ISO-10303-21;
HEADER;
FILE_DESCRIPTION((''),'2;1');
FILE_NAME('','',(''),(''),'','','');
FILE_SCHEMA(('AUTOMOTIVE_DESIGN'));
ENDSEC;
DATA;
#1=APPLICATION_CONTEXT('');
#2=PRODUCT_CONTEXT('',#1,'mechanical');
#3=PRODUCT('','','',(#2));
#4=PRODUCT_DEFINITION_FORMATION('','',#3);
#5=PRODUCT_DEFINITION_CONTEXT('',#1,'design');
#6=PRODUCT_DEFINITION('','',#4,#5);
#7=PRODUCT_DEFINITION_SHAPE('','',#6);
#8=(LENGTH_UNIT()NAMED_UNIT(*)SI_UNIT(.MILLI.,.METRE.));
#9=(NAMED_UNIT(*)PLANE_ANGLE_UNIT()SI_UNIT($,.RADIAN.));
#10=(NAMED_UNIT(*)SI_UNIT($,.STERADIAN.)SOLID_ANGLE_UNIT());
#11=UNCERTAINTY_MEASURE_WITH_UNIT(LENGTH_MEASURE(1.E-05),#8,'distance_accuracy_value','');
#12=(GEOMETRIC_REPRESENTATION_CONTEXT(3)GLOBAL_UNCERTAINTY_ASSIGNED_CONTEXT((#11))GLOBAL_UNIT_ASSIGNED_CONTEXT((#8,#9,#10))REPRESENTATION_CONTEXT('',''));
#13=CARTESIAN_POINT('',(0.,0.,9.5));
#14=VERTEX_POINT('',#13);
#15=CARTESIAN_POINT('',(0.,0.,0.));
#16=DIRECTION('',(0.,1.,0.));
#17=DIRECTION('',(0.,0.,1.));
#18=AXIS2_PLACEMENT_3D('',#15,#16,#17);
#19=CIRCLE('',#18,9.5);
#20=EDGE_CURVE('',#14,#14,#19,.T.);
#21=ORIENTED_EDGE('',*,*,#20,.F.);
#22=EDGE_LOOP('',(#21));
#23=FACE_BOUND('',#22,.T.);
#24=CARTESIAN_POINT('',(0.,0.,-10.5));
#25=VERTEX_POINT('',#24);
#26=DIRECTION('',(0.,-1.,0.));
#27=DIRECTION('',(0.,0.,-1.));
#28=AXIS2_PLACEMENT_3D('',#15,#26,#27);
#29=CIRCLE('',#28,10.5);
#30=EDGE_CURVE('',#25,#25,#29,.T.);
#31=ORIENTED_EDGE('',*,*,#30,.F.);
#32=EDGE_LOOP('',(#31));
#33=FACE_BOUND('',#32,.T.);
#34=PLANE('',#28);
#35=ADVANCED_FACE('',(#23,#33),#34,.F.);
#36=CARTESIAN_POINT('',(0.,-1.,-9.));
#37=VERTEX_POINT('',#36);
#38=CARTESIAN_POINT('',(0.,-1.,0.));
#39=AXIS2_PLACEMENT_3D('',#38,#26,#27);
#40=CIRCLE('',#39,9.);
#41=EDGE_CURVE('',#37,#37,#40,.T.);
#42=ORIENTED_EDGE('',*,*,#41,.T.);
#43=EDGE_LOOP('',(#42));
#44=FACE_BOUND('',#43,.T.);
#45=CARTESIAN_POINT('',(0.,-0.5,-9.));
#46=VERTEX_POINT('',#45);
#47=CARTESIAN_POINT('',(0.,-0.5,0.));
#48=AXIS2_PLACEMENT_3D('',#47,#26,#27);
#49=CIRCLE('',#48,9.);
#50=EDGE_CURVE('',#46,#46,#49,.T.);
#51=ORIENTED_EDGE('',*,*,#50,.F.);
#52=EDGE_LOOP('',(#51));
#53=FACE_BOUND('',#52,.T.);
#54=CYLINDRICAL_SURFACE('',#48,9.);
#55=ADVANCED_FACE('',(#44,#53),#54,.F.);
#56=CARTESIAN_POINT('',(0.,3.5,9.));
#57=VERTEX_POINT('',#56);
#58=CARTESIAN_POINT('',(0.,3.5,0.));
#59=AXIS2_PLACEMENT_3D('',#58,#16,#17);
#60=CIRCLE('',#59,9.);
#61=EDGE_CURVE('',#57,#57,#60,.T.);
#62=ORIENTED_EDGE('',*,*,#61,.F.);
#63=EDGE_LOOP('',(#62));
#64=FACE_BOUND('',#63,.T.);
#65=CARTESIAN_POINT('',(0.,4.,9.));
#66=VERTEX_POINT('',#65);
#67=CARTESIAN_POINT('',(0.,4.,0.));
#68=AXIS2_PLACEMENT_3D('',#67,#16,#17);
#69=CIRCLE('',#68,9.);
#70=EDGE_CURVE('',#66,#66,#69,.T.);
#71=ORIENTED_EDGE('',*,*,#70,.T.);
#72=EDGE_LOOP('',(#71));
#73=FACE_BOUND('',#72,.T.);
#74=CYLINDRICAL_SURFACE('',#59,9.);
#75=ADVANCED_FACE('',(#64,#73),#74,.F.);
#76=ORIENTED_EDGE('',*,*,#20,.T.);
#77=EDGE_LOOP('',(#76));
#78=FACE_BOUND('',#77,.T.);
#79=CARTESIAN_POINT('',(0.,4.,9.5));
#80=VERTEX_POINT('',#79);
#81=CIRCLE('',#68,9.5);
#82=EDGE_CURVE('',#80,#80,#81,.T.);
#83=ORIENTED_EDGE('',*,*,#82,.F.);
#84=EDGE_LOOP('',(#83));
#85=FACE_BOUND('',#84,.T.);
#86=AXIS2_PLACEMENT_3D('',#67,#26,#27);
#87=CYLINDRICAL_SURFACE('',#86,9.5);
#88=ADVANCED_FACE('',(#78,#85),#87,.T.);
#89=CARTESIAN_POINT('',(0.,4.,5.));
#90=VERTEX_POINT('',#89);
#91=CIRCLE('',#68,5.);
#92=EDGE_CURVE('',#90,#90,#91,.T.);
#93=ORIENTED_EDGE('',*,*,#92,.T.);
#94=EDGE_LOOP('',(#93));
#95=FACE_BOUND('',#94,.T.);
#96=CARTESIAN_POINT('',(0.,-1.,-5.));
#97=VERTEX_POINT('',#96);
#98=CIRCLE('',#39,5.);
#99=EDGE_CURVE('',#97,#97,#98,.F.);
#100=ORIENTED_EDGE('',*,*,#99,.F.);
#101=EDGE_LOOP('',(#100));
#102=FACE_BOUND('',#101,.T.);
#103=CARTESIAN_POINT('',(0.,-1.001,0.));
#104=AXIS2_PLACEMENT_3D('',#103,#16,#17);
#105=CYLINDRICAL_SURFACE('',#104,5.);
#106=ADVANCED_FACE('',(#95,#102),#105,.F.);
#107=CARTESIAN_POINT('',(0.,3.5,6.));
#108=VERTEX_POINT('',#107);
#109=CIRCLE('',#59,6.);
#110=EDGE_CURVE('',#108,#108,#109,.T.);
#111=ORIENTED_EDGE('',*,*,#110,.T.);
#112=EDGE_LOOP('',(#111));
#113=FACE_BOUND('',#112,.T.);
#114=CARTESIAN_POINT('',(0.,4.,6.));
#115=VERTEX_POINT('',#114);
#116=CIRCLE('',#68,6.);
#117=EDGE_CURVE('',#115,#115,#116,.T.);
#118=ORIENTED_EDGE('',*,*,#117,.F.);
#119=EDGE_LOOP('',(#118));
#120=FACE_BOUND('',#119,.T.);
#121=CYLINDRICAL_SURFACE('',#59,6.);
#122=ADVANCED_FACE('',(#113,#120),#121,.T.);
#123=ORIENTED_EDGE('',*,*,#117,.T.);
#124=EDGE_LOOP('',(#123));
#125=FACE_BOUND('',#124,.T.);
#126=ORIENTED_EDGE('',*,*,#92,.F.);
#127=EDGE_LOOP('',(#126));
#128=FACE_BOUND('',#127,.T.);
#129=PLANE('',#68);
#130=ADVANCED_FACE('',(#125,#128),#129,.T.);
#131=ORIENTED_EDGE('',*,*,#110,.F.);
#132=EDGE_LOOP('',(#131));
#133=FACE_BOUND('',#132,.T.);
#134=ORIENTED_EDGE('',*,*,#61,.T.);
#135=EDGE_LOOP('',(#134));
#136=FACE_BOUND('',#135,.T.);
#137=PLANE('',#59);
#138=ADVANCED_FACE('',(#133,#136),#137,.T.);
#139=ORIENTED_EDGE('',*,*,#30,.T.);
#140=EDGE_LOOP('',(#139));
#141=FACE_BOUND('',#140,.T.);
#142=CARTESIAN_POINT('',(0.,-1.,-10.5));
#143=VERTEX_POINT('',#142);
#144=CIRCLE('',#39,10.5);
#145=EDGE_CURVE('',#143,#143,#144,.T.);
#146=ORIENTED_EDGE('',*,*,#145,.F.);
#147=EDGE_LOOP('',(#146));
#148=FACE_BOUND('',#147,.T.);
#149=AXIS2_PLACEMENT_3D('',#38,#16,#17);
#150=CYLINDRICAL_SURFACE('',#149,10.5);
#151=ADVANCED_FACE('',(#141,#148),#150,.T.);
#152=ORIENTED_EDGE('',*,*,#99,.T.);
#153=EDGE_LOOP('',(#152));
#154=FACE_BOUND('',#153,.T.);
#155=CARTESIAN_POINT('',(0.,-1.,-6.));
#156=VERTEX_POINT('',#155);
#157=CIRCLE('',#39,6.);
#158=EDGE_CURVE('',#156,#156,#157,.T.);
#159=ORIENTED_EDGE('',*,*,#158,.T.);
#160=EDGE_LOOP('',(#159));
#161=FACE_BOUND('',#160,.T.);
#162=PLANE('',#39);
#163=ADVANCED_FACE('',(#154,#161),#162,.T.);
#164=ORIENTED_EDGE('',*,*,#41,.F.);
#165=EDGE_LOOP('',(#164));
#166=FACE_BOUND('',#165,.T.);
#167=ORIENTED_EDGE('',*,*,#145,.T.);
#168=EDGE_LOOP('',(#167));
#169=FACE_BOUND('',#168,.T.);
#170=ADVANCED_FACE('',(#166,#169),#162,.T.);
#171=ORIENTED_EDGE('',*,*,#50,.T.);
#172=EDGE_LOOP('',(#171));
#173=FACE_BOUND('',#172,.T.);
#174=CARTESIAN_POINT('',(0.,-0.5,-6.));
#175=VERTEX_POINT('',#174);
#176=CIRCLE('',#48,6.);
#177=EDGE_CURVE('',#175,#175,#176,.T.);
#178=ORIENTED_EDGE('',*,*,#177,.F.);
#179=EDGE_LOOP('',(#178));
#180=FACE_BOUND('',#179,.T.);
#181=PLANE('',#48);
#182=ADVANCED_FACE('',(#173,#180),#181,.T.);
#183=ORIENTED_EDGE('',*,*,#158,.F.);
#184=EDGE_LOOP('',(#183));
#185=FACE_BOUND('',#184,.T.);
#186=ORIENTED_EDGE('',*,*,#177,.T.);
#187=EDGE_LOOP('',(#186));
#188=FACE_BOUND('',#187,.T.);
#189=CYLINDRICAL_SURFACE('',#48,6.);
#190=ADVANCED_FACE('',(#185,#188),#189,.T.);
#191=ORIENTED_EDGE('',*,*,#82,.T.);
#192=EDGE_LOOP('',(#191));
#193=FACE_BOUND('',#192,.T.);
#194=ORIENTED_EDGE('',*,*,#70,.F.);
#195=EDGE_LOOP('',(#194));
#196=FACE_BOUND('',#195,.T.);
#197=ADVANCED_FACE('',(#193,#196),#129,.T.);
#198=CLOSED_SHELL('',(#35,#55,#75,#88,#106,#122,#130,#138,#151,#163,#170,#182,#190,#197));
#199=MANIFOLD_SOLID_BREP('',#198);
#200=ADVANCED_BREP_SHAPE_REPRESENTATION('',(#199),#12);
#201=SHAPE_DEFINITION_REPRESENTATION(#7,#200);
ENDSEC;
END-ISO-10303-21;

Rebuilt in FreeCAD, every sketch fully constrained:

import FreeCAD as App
import Part
import Sketcher
from FreeCAD import Vector

doc = App.newDocument("Part")
params = doc.addObject("Spreadsheet::Sheet", "Params")
for row, (alias, value) in enumerate([
    ("sketch1_diameter", "19 mm"),
    ("pad1_length", "4 mm"),
    ("sketch2_diameter", "21 mm"),
    ("pad2_length", "1 mm"),
    ("sketch3_diameter", "10 mm"),
    ("sketch4_diameter", "18 mm"),
    ("sketch4_diameter2", "12 mm"),
    ("pocket2_length", "0.5 mm"),
    ("sketch5_diameter", "18 mm"),
    ("sketch5_diameter2", "12 mm"),
    ("pocket3_length", "0.5 mm"),
], start=1):
    params.set(f"A{row}", alias)
    params.set(f"B{row}", "=" + value)
    params.setAlias(f"B{row}", alias)

body = doc.addObject("PartDesign::Body", "Body")

sketch1 = body.newObject("Sketcher::SketchObject", "Sketch")
sketch1.AttachmentSupport = (doc.getObject("XZ_Plane"), [""])
sketch1.MapMode = "FlatFace"
sketch1.addGeometry(Part.Circle(Vector(0, 0, 0), Vector(0, 0, 1), 10), False)
sketch1.addConstraint(Sketcher.Constraint("Coincident", 0, 3, -1, 1))
sketch1.addConstraint(Sketcher.Constraint("Diameter", 0, 19.0))
sketch1.setExpression("Constraints[1]", "Params.sketch1_diameter")
pad1 = body.newObject("PartDesign::Pad", "Pad")
pad1.Profile = sketch1
pad1.setExpression("Length", "Params.pad1_length")
pad1.Reversed = True

sketch2 = body.newObject("Sketcher::SketchObject", "Sketch001")
sketch2.AttachmentSupport = (doc.getObject("XZ_Plane"), [""])
sketch2.MapMode = "FlatFace"
sketch2.addGeometry(Part.Circle(Vector(0, 0, 0), Vector(0, 0, 1), 10), False)
sketch2.addConstraint(Sketcher.Constraint("Coincident", 0, 3, -1, 1))
sketch2.addConstraint(Sketcher.Constraint("Diameter", 0, 21.0))
sketch2.setExpression("Constraints[1]", "Params.sketch2_diameter")
pad2 = body.newObject("PartDesign::Pad", "Pad001")
pad2.Profile = sketch2
pad2.setExpression("Length", "Params.pad2_length")

sketch3 = body.newObject("Sketcher::SketchObject", "Sketch002")
sketch3.AttachmentSupport = (doc.getObject("XZ_Plane"), [""])
sketch3.MapMode = "FlatFace"
sketch3.AttachmentOffset = App.Placement(Vector(0, 0, -4), App.Rotation())
sketch3.addGeometry(Part.Circle(Vector(0, 0, 0), Vector(0, 0, 1), 5), False)
sketch3.addConstraint(Sketcher.Constraint("Coincident", 0, 3, -1, 1))
sketch3.addConstraint(Sketcher.Constraint("Diameter", 0, 10.0))
sketch3.setExpression("Constraints[1]", "Params.sketch3_diameter")
pocket1 = body.newObject("PartDesign::Pocket", "Pocket")
pocket1.Profile = sketch3
pocket1.Type = "UpToFirst"
pocket1.Reversed = True

sketch4 = body.newObject("Sketcher::SketchObject", "Sketch003")
sketch4.AttachmentSupport = (doc.getObject("XZ_Plane"), [""])
sketch4.MapMode = "FlatFace"
sketch4.AttachmentOffset = App.Placement(Vector(0, 0, -4), App.Rotation())
sketch4.addGeometry(Part.Circle(Vector(0, 0, 0), Vector(0, 0, 1), 9), False)
sketch4.addGeometry(Part.Circle(Vector(0, 0, 0), Vector(0, 0, 1), 6), False)
sketch4.addConstraint(Sketcher.Constraint("Coincident", 0, 3, -1, 1))
sketch4.addConstraint(Sketcher.Constraint("Coincident", 1, 3, -1, 1))
sketch4.addConstraint(Sketcher.Constraint("Diameter", 0, 18.0))
sketch4.addConstraint(Sketcher.Constraint("Diameter", 1, 12.0))
sketch4.setExpression("Constraints[2]", "Params.sketch4_diameter")
sketch4.setExpression("Constraints[3]", "Params.sketch4_diameter2")
pocket2 = body.newObject("PartDesign::Pocket", "Pocket001")
pocket2.Profile = sketch4
pocket2.setExpression("Length", "Params.pocket2_length")
pocket2.Reversed = True

sketch5 = body.newObject("Sketcher::SketchObject", "Sketch004")
sketch5.AttachmentSupport = (doc.getObject("XZ_Plane"), [""])
sketch5.MapMode = "FlatFace"
sketch5.AttachmentOffset = App.Placement(Vector(0, 0, 1), App.Rotation())
sketch5.addGeometry(Part.Circle(Vector(0, 0, 0), Vector(0, 0, 1), 9), False)
sketch5.addGeometry(Part.Circle(Vector(0, 0, 0), Vector(0, 0, 1), 6), False)
sketch5.addConstraint(Sketcher.Constraint("Coincident", 0, 3, -1, 1))
sketch5.addConstraint(Sketcher.Constraint("Coincident", 1, 3, -1, 1))
sketch5.addConstraint(Sketcher.Constraint("Diameter", 0, 18.0))
sketch5.addConstraint(Sketcher.Constraint("Diameter", 1, 12.0))
sketch5.setExpression("Constraints[2]", "Params.sketch5_diameter")
sketch5.setExpression("Constraints[3]", "Params.sketch5_diameter2")
pocket3 = body.newObject("PartDesign::Pocket", "Pocket002")
pocket3.Profile = sketch5
pocket3.setExpression("Length", "Params.pocket3_length")

doc.recompute()
